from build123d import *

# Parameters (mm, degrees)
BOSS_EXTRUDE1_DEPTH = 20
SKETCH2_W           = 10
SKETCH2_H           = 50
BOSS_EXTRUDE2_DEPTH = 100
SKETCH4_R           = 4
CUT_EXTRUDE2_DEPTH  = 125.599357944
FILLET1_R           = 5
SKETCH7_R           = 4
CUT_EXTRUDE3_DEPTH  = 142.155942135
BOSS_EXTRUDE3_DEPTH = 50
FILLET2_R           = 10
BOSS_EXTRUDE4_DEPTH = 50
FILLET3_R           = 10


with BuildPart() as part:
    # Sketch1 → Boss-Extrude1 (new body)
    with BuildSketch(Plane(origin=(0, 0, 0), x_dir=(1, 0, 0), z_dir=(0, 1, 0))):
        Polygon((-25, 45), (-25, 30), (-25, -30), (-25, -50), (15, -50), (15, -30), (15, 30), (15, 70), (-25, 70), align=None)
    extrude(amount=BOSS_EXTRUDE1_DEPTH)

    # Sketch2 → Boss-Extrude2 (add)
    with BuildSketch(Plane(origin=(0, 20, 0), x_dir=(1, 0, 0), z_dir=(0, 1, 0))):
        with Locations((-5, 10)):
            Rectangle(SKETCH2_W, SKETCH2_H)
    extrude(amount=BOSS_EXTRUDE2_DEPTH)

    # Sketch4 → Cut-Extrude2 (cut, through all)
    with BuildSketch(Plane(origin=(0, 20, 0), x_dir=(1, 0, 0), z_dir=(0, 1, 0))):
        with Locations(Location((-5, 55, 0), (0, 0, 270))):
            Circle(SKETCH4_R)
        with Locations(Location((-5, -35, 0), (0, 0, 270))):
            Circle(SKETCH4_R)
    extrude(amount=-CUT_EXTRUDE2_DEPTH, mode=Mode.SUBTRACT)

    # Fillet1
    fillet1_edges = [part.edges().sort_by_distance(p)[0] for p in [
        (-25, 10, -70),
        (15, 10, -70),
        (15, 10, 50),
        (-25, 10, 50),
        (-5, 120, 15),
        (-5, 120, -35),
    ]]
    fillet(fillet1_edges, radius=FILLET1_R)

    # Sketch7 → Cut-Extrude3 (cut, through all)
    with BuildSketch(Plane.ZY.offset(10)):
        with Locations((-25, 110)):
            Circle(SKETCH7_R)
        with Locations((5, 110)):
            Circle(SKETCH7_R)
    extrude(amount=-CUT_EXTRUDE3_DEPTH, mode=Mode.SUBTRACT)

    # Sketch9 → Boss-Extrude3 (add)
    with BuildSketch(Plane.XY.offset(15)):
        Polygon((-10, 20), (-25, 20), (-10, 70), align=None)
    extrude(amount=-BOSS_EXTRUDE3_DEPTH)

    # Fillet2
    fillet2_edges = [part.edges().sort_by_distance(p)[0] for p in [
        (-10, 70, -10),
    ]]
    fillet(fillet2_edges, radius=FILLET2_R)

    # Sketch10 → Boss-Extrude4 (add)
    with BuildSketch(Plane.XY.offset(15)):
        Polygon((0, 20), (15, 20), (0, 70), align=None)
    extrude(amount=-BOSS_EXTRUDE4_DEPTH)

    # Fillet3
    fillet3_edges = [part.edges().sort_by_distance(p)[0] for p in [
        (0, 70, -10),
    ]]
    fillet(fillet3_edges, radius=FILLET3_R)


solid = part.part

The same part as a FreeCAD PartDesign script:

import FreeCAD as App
import Part
import Sketcher


def edges_at(feature, points):
    """Names of the edges that pass closest to the given points."""
    edges = feature.Shape.Edges
    near = lambda p: min(range(len(edges)), key=lambda i: edges[i].distToShape(Part.Vertex(*p))[0])
    return sorted({f"Edge{near(p) + 1}" for p in points})

doc = App.newDocument("Part")
body = doc.addObject("PartDesign::Body", "Body")

# Sketch on XZ plane
sketch1 = body.newObject("Sketcher::SketchObject", "Sketch")
sketch1.AttachmentSupport = (doc.getObject("XZ_Plane"), [""])
sketch1.MapMode = "FlatFace"
sketch1.addGeometry([
    Part.LineSegment(App.Vector(-25, 50, 0), App.Vector(15, 50, 0)),
    Part.LineSegment(App.Vector(15, 50, 0), App.Vector(15, -70, 0)),
    Part.LineSegment(App.Vector(15, -70, 0), App.Vector(-25, -70, 0)),
    Part.LineSegment(App.Vector(-25, -70, 0), App.Vector(-25, 50, 0)),
], False)
sketch1.addConstraint([
    Sketcher.Constraint("Coincident", 0, 2, 1, 1),
    Sketcher.Constraint("Coincident", 1, 2, 2, 1),
    Sketcher.Constraint("Coincident", 2, 2, 3, 1),
    Sketcher.Constraint("Coincident", 3, 2, 0, 1),
    Sketcher.Constraint("Horizontal", 0),
    Sketcher.Constraint("Vertical", 1),
    Sketcher.Constraint("Horizontal", 2),
    Sketcher.Constraint("Vertical", 3),
    Sketcher.Constraint("DistanceX", 0, 1, 0, 2, 40.0),
    Sketcher.Constraint("DistanceY", 1, 2, 1, 1, 120.0),
    Sketcher.Constraint("DistanceX", -1, 1, 0, 2, 15.0),
    Sketcher.Constraint("DistanceY", -1, 1, 0, 2, 50.0),
])
pad1 = body.newObject("PartDesign::Pad", "Pad")
pad1.Profile = sketch1
pad1.Length = 20
pad1.Reversed = True

# Sketch on XZ plane
sketch2 = body.newObject("Sketcher::SketchObject", "Sketch001")
sketch2.AttachmentSupport = (doc.getObject("XZ_Plane"), [""])
sketch2.MapMode = "FlatFace"
sketch2.AttachmentOffset = App.Placement(App.Vector(0, 0, -20), App.Rotation())
sketch2.addGeometry([
    Part.LineSegment(App.Vector(-10, -35, 0), App.Vector(-10, 15, 0)),
    Part.LineSegment(App.Vector(-10, 15, 0), App.Vector(0, 15, 0)),
    Part.LineSegment(App.Vector(0, 15, 0), App.Vector(0, -35, 0)),
    Part.LineSegment(App.Vector(0, -35, 0), App.Vector(-10, -35, 0)),
], False)
sketch2.addConstraint([
    Sketcher.Constraint("Coincident", 0, 2, 1, 1),
    Sketcher.Constraint("Coincident", 1, 2, 2, 1),
    Sketcher.Constraint("Coincident", 2, 2, 3, 1),
    Sketcher.Constraint("Coincident", 3, 2, 0, 1),
    Sketcher.Constraint("Vertical", 0),
    Sketcher.Constraint("Horizontal", 1),
    Sketcher.Constraint("Vertical", 2),
    Sketcher.Constraint("Horizontal", 3),
    Sketcher.Constraint("PointOnObject", 1, 2, -2),
    Sketcher.Constraint("DistanceX", 1, 1, 1, 2, 10.0),
    Sketcher.Constraint("DistanceY", 0, 1, 0, 2, 50.0),
    Sketcher.Constraint("DistanceY", -1, 1, 0, 2, 15.0),
])
pad2 = body.newObject("PartDesign::Pad", "Pad001")
pad2.Profile = sketch2
pad2.Length = 100
pad2.Reversed = True

# Sketch on XZ plane
sketch3 = body.newObject("Sketcher::SketchObject", "Sketch002")
sketch3.AttachmentSupport = (doc.getObject("XZ_Plane"), [""])
sketch3.MapMode = "FlatFace"
sketch3.AttachmentOffset = App.Placement(App.Vector(0, 0, -20), App.Rotation())
sketch3.addGeometry([
    Part.Circle(App.Vector(-5, -55, 0), App.Vector(0, 0, 1), 4),
    Part.Circle(App.Vector(-5, 35, 0), App.Vector(0, 0, 1), 4),
], False)
sketch3.addConstraint([
    Sketcher.Constraint("Equal", 0, 1),
    Sketcher.Constraint("Vertical", 0, 3, 1, 3),
    Sketcher.Constraint("Diameter", 0, 8.0),
    Sketcher.Constraint("DistanceX", 0, 3, -1, 1, 5.0),
    Sketcher.Constraint("DistanceY", 0, 3, -1, 1, 55.0),
    Sketcher.Constraint("DistanceY", -1, 1, 1, 3, 35.0),
])
pocket1 = body.newObject("PartDesign::Pocket", "Pocket")
pocket1.Profile = sketch3
pocket1.Type = "ThroughAll"
pocket1.Reversed = True
doc.recompute()

fillet = body.newObject("PartDesign::Fillet", "Fillet")
fillet.Base = (pocket1, edges_at(pocket1, [
    (-25, 10, -70),
    (15, 10, -70),
    (15, 10, 50),
    (-25, 10, 50),
    (-5, 120, 15),
    (-5, 120, -35),
]))
fillet.Radius = 5

# Sketch on YZ plane
sketch4 = body.newObject("Sketcher::SketchObject", "Sketch003")
sketch4.AttachmentSupport = (doc.getObject("YZ_Plane"), [""])
sketch4.MapMode = "FlatFace"
sketch4.AttachmentOffset = App.Placement(App.Vector(0, 0, -10), App.Rotation())
sketch4.addGeometry([
    Part.Circle(App.Vector(110, -25, 0), App.Vector(0, 0, 1), 4),
    Part.Circle(App.Vector(110, 5, 0), App.Vector(0, 0, 1), 4),
], False)
sketch4.addConstraint([
    Sketcher.Constraint("Equal", 0, 1),
    Sketcher.Constraint("Vertical", 0, 3, 1, 3),
    Sketcher.Constraint("Diameter", 0, 8.0),
    Sketcher.Constraint("DistanceX", -1, 1, 0, 3, 110.0),
    Sketcher.Constraint("DistanceY", 0, 3, -1, 1, 25.0),
    Sketcher.Constraint("DistanceY", -1, 1, 1, 3, 5.0),
])
pocket2 = body.newObject("PartDesign::Pocket", "Pocket001")
pocket2.Profile = sketch4
pocket2.Type = "ThroughAll"
pocket2.Reversed = True

# Sketch on XY plane
sketch5 = body.newObject("Sketcher::SketchObject", "Sketch004")
sketch5.AttachmentSupport = (doc.getObject("XY_Plane"), [""])
sketch5.MapMode = "FlatFace"
sketch5.AttachmentOffset = App.Placement(App.Vector(0, 0, 15), App.Rotation())
sketch5.addGeometry([
    Part.LineSegment(App.Vector(-25, 20, 0), App.Vector(-10, 20, 0)),
    Part.LineSegment(App.Vector(-10, 20, 0), App.Vector(-10, 70, 0)),
    Part.LineSegment(App.Vector(-10, 70, 0), App.Vector(-25, 20, 0)),
], False)
sketch5.addConstraint([
    Sketcher.Constraint("Coincident", 0, 2, 1, 1),
    Sketcher.Constraint("Coincident", 1, 2, 2, 1),
    Sketcher.Constraint("Coincident", 2, 2, 0, 1),
    Sketcher.Constraint("Horizontal", 0),
    Sketcher.Constraint("Vertical", 1),
    Sketcher.Constraint("DistanceX", 0, 1, 0, 2, 15.0),
    Sketcher.Constraint("DistanceY", 1, 1, 1, 2, 50.0),
    Sketcher.Constraint("DistanceX", 0, 2, -1, 1, 10.0),
    Sketcher.Constraint("DistanceY", -1, 1, 0, 2, 20.0),
])
pad3 = body.newObject("PartDesign::Pad", "Pad002")
pad3.Profile = sketch5
pad3.Length = 50
pad3.Reversed = True
doc.recompute()

fillet2 = body.newObject("PartDesign::Fillet", "Fillet001")
fillet2.Base = (pad3, edges_at(pad3, [(-10, 70, -10)]))
fillet2.Radius = 10

# Sketch on XY plane
sketch6 = body.newObject("Sketcher::SketchObject", "Sketch005")
sketch6.AttachmentSupport = (doc.getObject("XY_Plane"), [""])
sketch6.MapMode = "FlatFace"
sketch6.AttachmentOffset = App.Placement(App.Vector(0, 0, 15), App.Rotation())
sketch6.addGeometry([
    Part.LineSegment(App.Vector(0, 20, 0), App.Vector(15, 20, 0)),
    Part.LineSegment(App.Vector(15, 20, 0), App.Vector(0, 70, 0)),
    Part.LineSegment(App.Vector(0, 70, 0), App.Vector(0, 20, 0)),
], False)
sketch6.addConstraint([
    Sketcher.Constraint("Coincident", 0, 2, 1, 1),
    Sketcher.Constraint("Coincident", 1, 2, 2, 1),
    Sketcher.Constraint("Coincident", 2, 2, 0, 1),
    Sketcher.Constraint("Horizontal", 0),
    Sketcher.Constraint("Vertical", 2),
    Sketcher.Constraint("PointOnObject", 1, 2, -2),
    Sketcher.Constraint("DistanceX", 0, 1, 0, 2, 15.0),
    Sketcher.Constraint("DistanceY", 2, 2, 2, 1, 50.0),
    Sketcher.Constraint("DistanceY", -1, 1, 0, 2, 20.0),
])
pad4 = body.newObject("PartDesign::Pad", "Pad003")
pad4.Profile = sketch6
pad4.Length = 50
pad4.Reversed = True
doc.recompute()

fillet3 = body.newObject("PartDesign::Fillet", "Fillet002")
fillet3.Base = (pad4, edges_at(pad4, [(0, 70, -10)]))
fillet3.Radius = 10

doc.recompute()
